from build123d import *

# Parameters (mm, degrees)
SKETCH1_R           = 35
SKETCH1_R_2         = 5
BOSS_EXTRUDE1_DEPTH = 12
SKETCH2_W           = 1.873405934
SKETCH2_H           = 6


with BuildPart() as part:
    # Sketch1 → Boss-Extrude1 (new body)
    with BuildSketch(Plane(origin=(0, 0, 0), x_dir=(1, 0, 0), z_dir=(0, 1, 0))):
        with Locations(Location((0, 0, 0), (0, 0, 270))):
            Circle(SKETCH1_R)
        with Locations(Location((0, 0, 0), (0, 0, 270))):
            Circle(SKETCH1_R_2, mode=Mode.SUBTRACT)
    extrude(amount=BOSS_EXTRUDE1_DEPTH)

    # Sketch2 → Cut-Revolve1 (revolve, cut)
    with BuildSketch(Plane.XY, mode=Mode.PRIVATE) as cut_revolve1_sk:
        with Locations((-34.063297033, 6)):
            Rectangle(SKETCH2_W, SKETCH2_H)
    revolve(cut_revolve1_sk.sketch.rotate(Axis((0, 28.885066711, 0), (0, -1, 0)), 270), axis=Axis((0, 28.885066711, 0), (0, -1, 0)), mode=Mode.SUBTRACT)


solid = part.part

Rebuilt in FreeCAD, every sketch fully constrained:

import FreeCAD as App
import Part
import Sketcher
Q = App.Units.Quantity

doc = App.newDocument("Part")
body = doc.addObject("PartDesign::Body", "Body")

sketch1 = doc.addObject("Sketcher::SketchObject", "Sketch")
body.addObject(sketch1)
sketch1.AttachmentSupport = (doc.XZ_Plane, [""])
sketch1.MapMode = "FlatFace"
sketch1.addGeometry(Part.Circle(App.Vector(0, 0, 0), App.Vector(0, 0, 1), 35), False)
sketch1.addGeometry(Part.Circle(App.Vector(0, 0, 0), App.Vector(0, 0, 1), 5), False)
sketch1.addConstraint(Sketcher.Constraint("Coincident", 0, 3, -1, 1))
sketch1.addConstraint(Sketcher.Constraint("Coincident", 1, 3, -1, 1))
sketch1.addConstraint(Sketcher.Constraint("Diameter", 0, Q("70 mm")))
sketch1.addConstraint(Sketcher.Constraint("Diameter", 1, Q("10 mm")))
pad1 = doc.addObject("PartDesign::Pad", "Pad")
body.addObject(pad1)
pad1.Profile = sketch1
pad1.Length = 12
pad1.Reversed = True

sketch2 = doc.addObject("Sketcher::SketchObject", "Sketch001")
body.addObject(sketch2)
sketch2.AttachmentSupport = (doc.XY_Plane, [""])
sketch2.MapMode = "FlatFace"
sketch2.addGeometry(Part.LineSegment(App.Vector(-35, 9, 0), App.Vector(-35, 3, 0)), False)
sketch2.addGeometry(Part.LineSegment(App.Vector(-35, 3, 0), App.Vector(-33.1, 3, 0)), False)
sketch2.addGeometry(Part.LineSegment(App.Vector(-33.1, 3, 0), App.Vector(-33.1, 9, 0)), False)
sketch2.addGeometry(Part.LineSegment(App.Vector(-33.1, 9, 0), App.Vector(-35, 9, 0)), False)
sketch2.addConstraint(Sketcher.Constraint("Coincident", 0, 2, 1, 1))
sketch2.addConstraint(Sketcher.Constraint("Coincident", 1, 2, 2, 1))
sketch2.addConstraint(Sketcher.Constraint("Coincident", 2, 2, 3, 1))
sketch2.addConstraint(Sketcher.Constraint("Coincident", 3, 2, 0, 1))
sketch2.addConstraint(Sketcher.Constraint("Vertical", 0))
sketch2.addConstraint(Sketcher.Constraint("Horizontal", 1))
sketch2.addConstraint(Sketcher.Constraint("Vertical", 2))
sketch2.addConstraint(Sketcher.Constraint("Horizontal", 3))
sketch2.addConstraint(Sketcher.Constraint("DistanceY", 0, 2, 0, 1, Q("6 mm")))
sketch2.addConstraint(Sketcher.Constraint("DistanceX", 0, 2, -1, 1, Q("35 mm")))
sketch2.addConstraint(Sketcher.Constraint("DistanceY", -1, 1, 0, 2, Q("3 mm")))
sketch2.addConstraint(Sketcher.Constraint("DistanceX", 1, 1, 1, 2, Q("1.873406 mm")))
groove = doc.addObject("PartDesign::Groove", "Groove")
body.addObject(groove)
groove.Profile = sketch2
groove.ReferenceAxis = (sketch2, ["V_Axis"])
groove.Angle = 360

doc.recompute()
